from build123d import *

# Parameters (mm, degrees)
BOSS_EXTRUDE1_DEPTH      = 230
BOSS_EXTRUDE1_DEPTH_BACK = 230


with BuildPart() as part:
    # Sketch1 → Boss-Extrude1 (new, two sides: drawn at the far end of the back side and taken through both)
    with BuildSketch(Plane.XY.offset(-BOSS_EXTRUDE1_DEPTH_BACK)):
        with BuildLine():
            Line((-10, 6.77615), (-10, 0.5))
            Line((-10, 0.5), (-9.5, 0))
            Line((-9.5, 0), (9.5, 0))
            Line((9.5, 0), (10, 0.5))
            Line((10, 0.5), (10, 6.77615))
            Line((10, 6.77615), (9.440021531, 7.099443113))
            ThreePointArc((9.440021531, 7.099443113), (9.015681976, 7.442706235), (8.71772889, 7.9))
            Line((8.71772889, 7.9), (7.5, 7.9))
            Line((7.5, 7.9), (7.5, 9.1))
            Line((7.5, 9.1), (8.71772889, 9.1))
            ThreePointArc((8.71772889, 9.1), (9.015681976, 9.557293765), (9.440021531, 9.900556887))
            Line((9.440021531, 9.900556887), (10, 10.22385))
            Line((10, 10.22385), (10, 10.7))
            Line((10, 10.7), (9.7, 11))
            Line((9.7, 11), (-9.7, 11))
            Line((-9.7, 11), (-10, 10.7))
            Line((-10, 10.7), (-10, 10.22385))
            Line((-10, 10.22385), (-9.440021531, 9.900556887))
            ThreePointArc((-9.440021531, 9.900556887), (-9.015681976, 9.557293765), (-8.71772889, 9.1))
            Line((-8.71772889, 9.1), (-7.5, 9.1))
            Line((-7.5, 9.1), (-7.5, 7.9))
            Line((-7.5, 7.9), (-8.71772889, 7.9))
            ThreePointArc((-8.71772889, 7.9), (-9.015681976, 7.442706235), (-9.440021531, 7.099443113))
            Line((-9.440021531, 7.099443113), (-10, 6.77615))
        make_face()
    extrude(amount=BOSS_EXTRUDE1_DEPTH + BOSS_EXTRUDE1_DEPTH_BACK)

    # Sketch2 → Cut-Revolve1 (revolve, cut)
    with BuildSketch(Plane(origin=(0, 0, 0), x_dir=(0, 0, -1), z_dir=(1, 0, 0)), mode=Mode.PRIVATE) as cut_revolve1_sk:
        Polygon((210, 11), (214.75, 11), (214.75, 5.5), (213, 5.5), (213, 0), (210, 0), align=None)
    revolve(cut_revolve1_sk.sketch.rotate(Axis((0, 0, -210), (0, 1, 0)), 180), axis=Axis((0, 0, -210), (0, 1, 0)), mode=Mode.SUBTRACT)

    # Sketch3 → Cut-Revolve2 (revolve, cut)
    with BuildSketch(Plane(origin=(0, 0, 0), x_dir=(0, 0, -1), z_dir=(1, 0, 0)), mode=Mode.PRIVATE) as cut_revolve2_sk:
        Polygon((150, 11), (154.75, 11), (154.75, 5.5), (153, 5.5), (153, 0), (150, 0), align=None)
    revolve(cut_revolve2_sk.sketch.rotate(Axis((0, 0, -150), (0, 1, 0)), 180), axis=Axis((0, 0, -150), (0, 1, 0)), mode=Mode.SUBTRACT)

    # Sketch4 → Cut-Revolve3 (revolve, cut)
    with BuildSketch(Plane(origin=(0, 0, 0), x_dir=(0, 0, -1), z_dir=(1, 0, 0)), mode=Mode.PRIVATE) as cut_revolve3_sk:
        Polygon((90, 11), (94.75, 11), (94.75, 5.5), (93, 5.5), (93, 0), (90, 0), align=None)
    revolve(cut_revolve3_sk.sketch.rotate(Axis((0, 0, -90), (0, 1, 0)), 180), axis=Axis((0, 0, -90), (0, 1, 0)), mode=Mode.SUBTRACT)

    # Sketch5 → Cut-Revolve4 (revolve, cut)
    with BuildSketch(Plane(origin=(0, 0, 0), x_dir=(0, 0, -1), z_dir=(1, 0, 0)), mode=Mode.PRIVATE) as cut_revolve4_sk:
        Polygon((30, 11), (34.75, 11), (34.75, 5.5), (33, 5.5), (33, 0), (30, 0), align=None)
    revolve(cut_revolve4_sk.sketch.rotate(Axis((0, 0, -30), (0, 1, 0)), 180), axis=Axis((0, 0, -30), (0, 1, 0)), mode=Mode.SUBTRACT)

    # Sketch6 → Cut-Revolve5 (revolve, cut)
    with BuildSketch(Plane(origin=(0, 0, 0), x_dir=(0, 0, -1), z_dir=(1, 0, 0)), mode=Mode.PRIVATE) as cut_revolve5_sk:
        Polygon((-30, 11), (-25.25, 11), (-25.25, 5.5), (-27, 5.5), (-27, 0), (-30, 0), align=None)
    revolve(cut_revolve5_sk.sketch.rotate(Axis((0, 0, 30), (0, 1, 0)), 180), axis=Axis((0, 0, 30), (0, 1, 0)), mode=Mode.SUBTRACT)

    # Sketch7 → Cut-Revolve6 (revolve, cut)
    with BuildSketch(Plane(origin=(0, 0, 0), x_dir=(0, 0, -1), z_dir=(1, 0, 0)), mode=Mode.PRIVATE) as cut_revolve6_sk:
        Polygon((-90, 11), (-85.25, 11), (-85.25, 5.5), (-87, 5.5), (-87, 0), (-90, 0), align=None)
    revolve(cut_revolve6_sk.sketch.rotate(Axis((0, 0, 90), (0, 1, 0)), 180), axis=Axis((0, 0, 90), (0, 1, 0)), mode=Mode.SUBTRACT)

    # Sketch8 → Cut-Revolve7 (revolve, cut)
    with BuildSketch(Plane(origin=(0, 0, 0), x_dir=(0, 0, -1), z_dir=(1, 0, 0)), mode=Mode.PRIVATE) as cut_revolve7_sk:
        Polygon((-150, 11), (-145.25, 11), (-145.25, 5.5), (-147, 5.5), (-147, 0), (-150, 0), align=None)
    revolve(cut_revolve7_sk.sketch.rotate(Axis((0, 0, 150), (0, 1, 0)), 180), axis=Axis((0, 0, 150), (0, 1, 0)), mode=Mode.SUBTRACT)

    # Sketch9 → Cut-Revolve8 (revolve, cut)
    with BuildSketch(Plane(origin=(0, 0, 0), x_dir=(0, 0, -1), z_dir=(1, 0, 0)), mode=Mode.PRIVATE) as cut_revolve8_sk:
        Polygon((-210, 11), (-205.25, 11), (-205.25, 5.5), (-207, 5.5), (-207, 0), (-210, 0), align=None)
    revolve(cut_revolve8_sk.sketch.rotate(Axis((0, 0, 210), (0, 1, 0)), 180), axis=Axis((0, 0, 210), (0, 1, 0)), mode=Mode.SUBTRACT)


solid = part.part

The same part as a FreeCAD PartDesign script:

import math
import FreeCAD as App
import Part
import Sketcher
from FreeCAD import Vector
Q = App.Units.Quantity


def add_polygon(sketch, points):
    """Adds a closed chain of lines whose ends are joined by coincident constraints."""
    first, n = sketch.GeometryCount, len(points)
    for a, b in zip(points, points[1:] + points[:1]):
        sketch.addGeometry(Part.LineSegment(App.Vector(*a, 0), App.Vector(*b, 0)), False)
    for i in range(n):
        sketch.addConstraint(Sketcher.Constraint("Coincident", first + i, 2, first + (i + 1) % n, 1))

doc = App.newDocument("Part")
body = doc.addObject("PartDesign::Body", "Body")

# Sketch on XY plane
sketch1 = doc.addObject("Sketcher::SketchObject", "Sketch")
body.addObject(sketch1)
sketch1.AttachmentSupport = (doc.XY_Plane, [""])
sketch1.MapMode = "FlatFace"
sketch1.addGeometry([
    Part.LineSegment(Vector(-10, 6.77615, 0), Vector(-10, 0.5, 0)),  # 0
    Part.LineSegment(Vector(-10, 0.5, 0), Vector(-9.5, 0, 0)),  # 1
    Part.LineSegment(Vector(-9.5, 0, 0), Vector(9.5, 0, 0)),  # 2
    Part.LineSegment(Vector(9.5, 0, 0), Vector(10, 0.5, 0)),  # 3
    Part.LineSegment(Vector(10, 0.5, 0), Vector(10, 6.77615, 0)),  # 4
    Part.LineSegment(Vector(10, 6.77615, 0), Vector(9.440022, 7.099443, 0)),  # 5
    Part.ArcOfCircle(Part.Circle(Vector(10.315, 8.615, 0), Vector(0, 0, 1), 1.75), math.radians(-155.884874), math.radians(-119.999186)),  # 6
    Part.LineSegment(Vector(8.717729, 7.9, 0), Vector(7.5, 7.9, 0)),  # 7
    Part.LineSegment(Vector(7.5, 7.9, 0), Vector(7.5, 9.1, 0)),  # 8
    Part.LineSegment(Vector(7.5, 9.1, 0), Vector(8.717729, 9.1, 0)),  # 9
    Part.ArcOfCircle(Part.Circle(Vector(10.315, 8.385, 0), Vector(0, 0, 1), 1.75), math.radians(119.999186), math.radians(155.884874)),  # 10
    Part.LineSegment(Vector(9.440022, 9.900557, 0), Vector(10, 10.22385, 0)),  # 11
    Part.LineSegment(Vector(10, 10.22385, 0), Vector(10, 10.7, 0)),  # 12
    Part.LineSegment(Vector(10, 10.7, 0), Vector(9.7, 11, 0)),  # 13
    Part.LineSegment(Vector(9.7, 11, 0), Vector(-9.7, 11, 0)),  # 14
    Part.LineSegment(Vector(-9.7, 11, 0), Vector(-10, 10.7, 0)),  # 15
    Part.LineSegment(Vector(-10, 10.7, 0), Vector(-10, 10.22385, 0)),  # 16
    Part.LineSegment(Vector(-10, 10.22385, 0), Vector(-9.440022, 9.900557, 0)),  # 17
    Part.ArcOfCircle(Part.Circle(Vector(-10.315, 8.385, 0), Vector(0, 0, 1), 1.75), math.radians(24.115126), math.radians(60.000814)),  # 18
    Part.LineSegment(Vector(-8.717729, 9.1, 0), Vector(-7.5, 9.1, 0)),  # 19
    Part.LineSegment(Vector(-7.5, 9.1, 0), Vector(-7.5, 7.9, 0)),  # 20
    Part.LineSegment(Vector(-7.5, 7.9, 0), Vector(-8.717729, 7.9, 0)),  # 21
    Part.ArcOfCircle(Part.Circle(Vector(-10.315, 8.615, 0), Vector(0, 0, 1), 1.75), math.radians(-60.000814), math.radians(-24.115126)),  # 22
    Part.LineSegment(Vector(-9.440022, 7.099443, 0), Vector(-10, 6.77615, 0)),  # 23
], False)
sketch1.addConstraint([
    Sketcher.Constraint("Coincident", 0, 2, 1, 1),
    Sketcher.Constraint("Coincident", 1, 2, 2, 1),
    Sketcher.Constraint("Coincident", 2, 2, 3, 1),
    Sketcher.Constraint("Coincident", 3, 2, 4, 1),
    Sketcher.Constraint("Coincident", 4, 2, 5, 1),
    Sketcher.Constraint("Tangent", 5, 2, 6, 2),
    Sketcher.Constraint("Coincident", 6, 1, 7, 1),
    Sketcher.Constraint("Coincident", 7, 2, 8, 1),
    Sketcher.Constraint("Coincident", 8, 2, 9, 1),
    Sketcher.Constraint("Coincident", 9, 2, 10, 2),
    Sketcher.Constraint("Tangent", 10, 1, 11, 1),
    Sketcher.Constraint("Coincident", 11, 2, 12, 1),
    Sketcher.Constraint("Coincident", 12, 2, 13, 1),
    Sketcher.Constraint("Coincident", 13, 2, 14, 1),
    Sketcher.Constraint("Coincident", 14, 2, 15, 1),
    Sketcher.Constraint("Coincident", 15, 2, 16, 1),
    Sketcher.Constraint("Coincident", 16, 2, 17, 1),
    Sketcher.Constraint("Tangent", 17, 2, 18, 2),
    Sketcher.Constraint("Coincident", 18, 1, 19, 1),
    Sketcher.Constraint("Coincident", 19, 2, 20, 1),
    Sketcher.Constraint("Coincident", 20, 2, 21, 1),
    Sketcher.Constraint("Coincident", 21, 2, 22, 2),
    Sketcher.Constraint("Tangent", 22, 1, 23, 1),
    Sketcher.Constraint("Coincident", 23, 2, 0, 1),
    Sketcher.Constraint("Vertical", 0),
    Sketcher.Constraint("Horizontal", 2),
    Sketcher.Constraint("Vertical", 4),
    Sketcher.Constraint("Horizontal", 7),
    Sketcher.Constraint("Vertical", 8),
    Sketcher.Constraint("Horizontal", 9),
    Sketcher.Constraint("Vertical", 12),
    Sketcher.Constraint("Horizontal", 14),
    Sketcher.Constraint("Vertical", 16),
    Sketcher.Constraint("Horizontal", 19),
    Sketcher.Constraint("Vertical", 20),
    Sketcher.Constraint("Horizontal", 21),
    Sketcher.Constraint("Equal", 6, 10),
    Sketcher.Constraint("Equal", 10, 18),
    Sketcher.Constraint("Equal", 18, 22),
    Sketcher.Constraint("Symmetric", 1, 2, 2, 2, -1, 1),
    Sketcher.Constraint("Symmetric", 10, 3, 18, 3, -2),
    Sketcher.Constraint("Symmetric", 6, 3, 22, 3, -2),
    Sketcher.Constraint("Symmetric", 0, 2, 3, 2, -2),
    Sketcher.Constraint("Symmetric", 12, 2, 15, 2, -2),
    Sketcher.Constraint("Symmetric", 8, 2, 19, 2, -2),
    Sketcher.Constraint("Perpendicular", 1, 3),
    Sketcher.Constraint("Perpendicular", 3, 13),
    Sketcher.Constraint("Perpendicular", 13, 15),
    Sketcher.Constraint("Parallel", 5, 17),
    Sketcher.Constraint("Parallel", 11, 23),
    Sketcher.Constraint("Horizontal", 11, 2, 16, 2),
    Sketcher.Constraint("Horizontal", 7, 2, 20, 2),
    Sketcher.Constraint("Vertical", 6, 3, 10, 3),
    Sketcher.Constraint("Vertical", 6, 1, 9, 2),
    Sketcher.Constraint("Vertical", 4, 2, 11, 2),
    Sketcher.Constraint("DistanceX", 2, 1, 2, 2, Q("19 mm")),
    Sketcher.Constraint("Radius", 6, Q("1.75 mm")),
    Sketcher.Constraint("DistanceX", 14, 2, 14, 1, Q("19.4 mm")),
    Sketcher.Constraint("DistanceY", 8, 1, 8, 2, Q("1.2 mm")),
    Sketcher.Constraint("DistanceX", 0, 2, -1, 1, Q("10 mm")),
    Sketcher.Constraint("DistanceY", -1, 1, 13, 2, Q("11 mm")),
    Sketcher.Constraint("DistanceY", -1, 1, 6, 1, Q("7.9 mm")),
    Sketcher.Constraint("DistanceX", -1, 1, 7, 2, Q("7.5 mm")),
    Sketcher.Constraint("DistanceY", 10, 3, 6, 3, Q("0.23 mm")),
    Sketcher.Constraint("DistanceX", 18, 3, 10, 3, Q("20.63 mm")),
    Sketcher.Constraint("DistanceY", 0, 2, 0, 1, Q("6.27615 mm")),
])
pad1 = doc.addObject("PartDesign::Pad", "Pad")
body.addObject(pad1)
pad1.Profile = sketch1
pad1.Type = "TwoLengths"
pad1.Length = 230
pad1.Length2 = 230

# Sketch on YZ plane
sketch2 = doc.addObject("Sketcher::SketchObject", "Sketch001")
body.addObject(sketch2)
sketch2.AttachmentSupport = (doc.YZ_Plane, [""])
sketch2.MapMode = "FlatFace"
add_polygon(sketch2, [(11, -214.75), (11, -210), (0, -210), (0, -213), (5.5, -213), (5.5, -214.75)])  # lines 0-5
sketch2.addGeometry(Part.LineSegment(Vector(0, -210, 0), Vector(11, -210, 0)), True)  # axis
sketch2.addConstraint([
    Sketcher.Constraint("Vertical", 0),
    Sketcher.Constraint("Horizontal", 1),
    Sketcher.Constraint("Vertical", 2),
    Sketcher.Constraint("Horizontal", 3),
    Sketcher.Constraint("Vertical", 4),
    Sketcher.Constraint("Horizontal", 5),
    Sketcher.Constraint("Horizontal", 6),
    Sketcher.Constraint("Coincident", 6, 1, 1, 2),
    Sketcher.Constraint("PointOnObject", 1, 2, -2),
    Sketcher.Constraint("Vertical", 5, 2, 6, 2),
    Sketcher.Constraint("Equal", 3, 5),
    Sketcher.Constraint("DistanceX", 1, 2, 1, 1, Q("11 mm")),
    Sketcher.Constraint("DistanceY", 2, 2, 2, 1, Q("3 mm")),
    Sketcher.Constraint("DistanceY", 0, 2, -1, 1, Q("210 mm")),
    Sketcher.Constraint("DistanceY", 0, 1, 0, 2, Q("4.75 mm")),
])
groove = doc.addObject("PartDesign::Groove", "Groove")
body.addObject(groove)
groove.Profile = sketch2
groove.ReferenceAxis = (sketch2, ["Axis0"])
groove.Angle = 360

# Sketch on YZ plane
sketch3 = doc.addObject("Sketcher::SketchObject", "Sketch002")
body.addObject(sketch3)
sketch3.AttachmentSupport = (doc.YZ_Plane, [""])
sketch3.MapMode = "FlatFace"
add_polygon(sketch3, [(11, -154.75), (11, -150), (0, -150), (0, -153), (5.5, -153), (5.5, -154.75)])  # lines 0-5
sketch3.addGeometry(Part.LineSegment(Vector(0, -150, 0), Vector(11, -150, 0)), True)  # axis
sketch3.addConstraint([
    Sketcher.Constraint("Vertical", 0),
    Sketcher.Constraint("Horizontal", 1),
    Sketcher.Constraint("Vertical", 2),
    Sketcher.Constraint("Horizontal", 3),
    Sketcher.Constraint("Vertical", 4),
    Sketcher.Constraint("Horizontal", 5),
    Sketcher.Constraint("Horizontal", 6),
    Sketcher.Constraint("Coincident", 6, 1, 1, 2),
    Sketcher.Constraint("PointOnObject", 1, 2, -2),
    Sketcher.Constraint("Vertical", 5, 2, 6, 2),
    Sketcher.Constraint("Equal", 3, 5),
    Sketcher.Constraint("DistanceX", 1, 2, 1, 1, Q("11 mm")),
    Sketcher.Constraint("DistanceY", 2, 2, 2, 1, Q("3 mm")),
    Sketcher.Constraint("DistanceY", 0, 2, -1, 1, Q("150 mm")),
    Sketcher.Constraint("DistanceY", 0, 1, 0, 2, Q("4.75 mm")),
])
groove2 = doc.addObject("PartDesign::Groove", "Groove001")
body.addObject(groove2)
groove2.Profile = sketch3
groove2.ReferenceAxis = (sketch3, ["Axis0"])
groove2.Angle = 360

# Sketch on YZ plane
sketch4 = doc.addObject("Sketcher::SketchObject", "Sketch003")
body.addObject(sketch4)
sketch4.AttachmentSupport = (doc.YZ_Plane, [""])
sketch4.MapMode = "FlatFace"
add_polygon(sketch4, [(11, -94.75), (11, -90), (0, -90), (0, -93), (5.5, -93), (5.5, -94.75)])  # lines 0-5
sketch4.addGeometry(Part.LineSegment(Vector(0, -90, 0), Vector(11, -90, 0)), True)  # axis
sketch4.addConstraint([
    Sketcher.Constraint("Vertical", 0),
    Sketcher.Constraint("Horizontal", 1),
    Sketcher.Constraint("Vertical", 2),
    Sketcher.Constraint("Horizontal", 3),
    Sketcher.Constraint("Vertical", 4),
    Sketcher.Constraint("Horizontal", 5),
    Sketcher.Constraint("Horizontal", 6),
    Sketcher.Constraint("Coincident", 6, 1, 1, 2),
    Sketcher.Constraint("PointOnObject", 1, 2, -2),
    Sketcher.Constraint("Vertical", 5, 2, 6, 2),
    Sketcher.Constraint("Equal", 3, 5),
    Sketcher.Constraint("DistanceX", 1, 2, 1, 1, Q("11 mm")),
    Sketcher.Constraint("DistanceY", 2, 2, 2, 1, Q("3 mm")),
    Sketcher.Constraint("DistanceY", 0, 2, -1, 1, Q("90 mm")),
    Sketcher.Constraint("DistanceY", 0, 1, 0, 2, Q("4.75 mm")),
])
groove3 = doc.addObject("PartDesign::Groove", "Groove002")
body.addObject(groove3)
groove3.Profile = sketch4
groove3.ReferenceAxis = (sketch4, ["Axis0"])
groove3.Angle = 360

# Sketch on YZ plane
sketch5 = doc.addObject("Sketcher::SketchObject", "Sketch004")
body.addObject(sketch5)
sketch5.AttachmentSupport = (doc.YZ_Plane, [""])
sketch5.MapMode = "FlatFace"
add_polygon(sketch5, [(11, -34.75), (11, -30), (0, -30), (0, -33), (5.5, -33), (5.5, -34.75)])  # lines 0-5
sketch5.addGeometry(Part.LineSegment(Vector(0, -30, 0), Vector(11, -30, 0)), True)  # axis
sketch5.addConstraint([
    Sketcher.Constraint("Vertical", 0),
    Sketcher.Constraint("Horizontal", 1),
    Sketcher.Constraint("Vertical", 2),
    Sketcher.Constraint("Horizontal", 3),
    Sketcher.Constraint("Vertical", 4),
    Sketcher.Constraint("Horizontal", 5),
    Sketcher.Constraint("Horizontal", 6),
    Sketcher.Constraint("Coincident", 6, 1, 1, 2),
    Sketcher.Constraint("PointOnObject", 1, 2, -2),
    Sketcher.Constraint("Vertical", 5, 2, 6, 2),
    Sketcher.Constraint("Equal", 3, 5),
    Sketcher.Constraint("DistanceX", 1, 2, 1, 1, Q("11 mm")),
    Sketcher.Constraint("DistanceY", 2, 2, 2, 1, Q("3 mm")),
    Sketcher.Constraint("DistanceY", 0, 2, -1, 1, Q("30 mm")),
    Sketcher.Constraint("DistanceY", 0, 1, 0, 2, Q("4.75 mm")),
])
groove4 = doc.addObject("PartDesign::Groove", "Groove003")
body.addObject(groove4)
groove4.Profile = sketch5
groove4.ReferenceAxis = (sketch5, ["Axis0"])
groove4.Angle = 360

# Sketch on YZ plane
sketch6 = doc.addObject("Sketcher::SketchObject", "Sketch005")
body.addObject(sketch6)
sketch6.AttachmentSupport = (doc.YZ_Plane, [""])
sketch6.MapMode = "FlatFace"
add_polygon(sketch6, [(11, 25.25), (11, 30), (0, 30), (0, 27), (5.5, 27), (5.5, 25.25)])  # lines 0-5
sketch6.addGeometry(Part.LineSegment(Vector(0, 30, 0), Vector(11, 30, 0)), True)  # axis
sketch6.addConstraint([
    Sketcher.Constraint("Vertical", 0),
    Sketcher.Constraint("Horizontal", 1),
    Sketcher.Constraint("Vertical", 2),
    Sketcher.Constraint("Horizontal", 3),
    Sketcher.Constraint("Vertical", 4),
    Sketcher.Constraint("Horizontal", 5),
    Sketcher.Constraint("Horizontal", 6),
    Sketcher.Constraint("Coincident", 6, 1, 1, 2),
    Sketcher.Constraint("PointOnObject", 1, 2, -2),
    Sketcher.Constraint("Vertical", 5, 2, 6, 2),
    Sketcher.Constraint("Equal", 3, 5),
    Sketcher.Constraint("DistanceX", 1, 2, 1, 1, Q("11 mm")),
    Sketcher.Constraint("DistanceY", 2, 2, 2, 1, Q("3 mm")),
    Sketcher.Constraint("DistanceY", -1, 1, 0, 2, Q("30 mm")),
    Sketcher.Constraint("DistanceY", 0, 1, 0, 2, Q("4.75 mm")),
])
groove5 = doc.addObject("PartDesign::Groove", "Groove004")
body.addObject(groove5)
groove5.Profile = sketch6
groove5.ReferenceAxis = (sketch6, ["Axis0"])
groove5.Angle = 360

# Sketch on YZ plane
sketch7 = doc.addObject("Sketcher::SketchObject", "Sketch006")
body.addObject(sketch7)
sketch7.AttachmentSupport = (doc.YZ_Plane, [""])
sketch7.MapMode = "FlatFace"
add_polygon(sketch7, [(11, 85.25), (11, 90), (0, 90), (0, 87), (5.5, 87), (5.5, 85.25)])  # lines 0-5
sketch7.addGeometry(Part.LineSegment(Vector(0, 90, 0), Vector(11, 90, 0)), True)  # axis
sketch7.addConstraint([
    Sketcher.Constraint("Vertical", 0),
    Sketcher.Constraint("Horizontal", 1),
    Sketcher.Constraint("Vertical", 2),
    Sketcher.Constraint("Horizontal", 3),
    Sketcher.Constraint("Vertical", 4),
    Sketcher.Constraint("Horizontal", 5),
    Sketcher.Constraint("Horizontal", 6),
    Sketcher.Constraint("Coincident", 6, 1, 1, 2),
    Sketcher.Constraint("PointOnObject", 1, 2, -2),
    Sketcher.Constraint("Vertical", 5, 2, 6, 2),
    Sketcher.Constraint("Equal", 3, 5),
    Sketcher.Constraint("DistanceX", 1, 2, 1, 1, Q("11 mm")),
    Sketcher.Constraint("DistanceY", 2, 2, 2, 1, Q("3 mm")),
    Sketcher.Constraint("DistanceY", -1, 1, 0, 2, Q("90 mm")),
    Sketcher.Constraint("DistanceY", 0, 1, 0, 2, Q("4.75 mm")),
])
groove6 = doc.addObject("PartDesign::Groove", "Groove005")
body.addObject(groove6)
groove6.Profile = sketch7
groove6.ReferenceAxis = (sketch7, ["Axis0"])
groove6.Angle = 360

# Sketch on YZ plane
sketch8 = doc.addObject("Sketcher::SketchObject", "Sketch007")
body.addObject(sketch8)
sketch8.AttachmentSupport = (doc.YZ_Plane, [""])
sketch8.MapMode = "FlatFace"
add_polygon(sketch8, [(11, 145.25), (11, 150), (0, 150), (0, 147), (5.5, 147), (5.5, 145.25)])  # lines 0-5
sketch8.addGeometry(Part.LineSegment(Vector(0, 150, 0), Vector(11, 150, 0)), True)  # axis
sketch8.addConstraint([
    Sketcher.Constraint("Vertical", 0),
    Sketcher.Constraint("Horizontal", 1),
    Sketcher.Constraint("Vertical", 2),
    Sketcher.Constraint("Horizontal", 3),
    Sketcher.Constraint("Vertical", 4),
    Sketcher.Constraint("Horizontal", 5),
    Sketcher.Constraint("Horizontal", 6),
    Sketcher.Constraint("Coincident", 6, 1, 1, 2),
    Sketcher.Constraint("PointOnObject", 1, 2, -2),
    Sketcher.Constraint("Vertical", 5, 2, 6, 2),
    Sketcher.Constraint("Equal", 3, 5),
    Sketcher.Constraint("DistanceX", 1, 2, 1, 1, Q("11 mm")),
    Sketcher.Constraint("DistanceY", 2, 2, 2, 1, Q("3 mm")),
    Sketcher.Constraint("DistanceY", -1, 1, 0, 2, Q("150 mm")),
    Sketcher.Constraint("DistanceY", 0, 1, 0, 2, Q("4.75 mm")),
])
groove7 = doc.addObject("PartDesign::Groove", "Groove006")
body.addObject(groove7)
groove7.Profile = sketch8
groove7.ReferenceAxis = (sketch8, ["Axis0"])
groove7.Angle = 360

# Sketch on YZ plane
sketch9 = doc.addObject("Sketcher::SketchObject", "Sketch008")
body.addObject(sketch9)
sketch9.AttachmentSupport = (doc.YZ_Plane, [""])
sketch9.MapMode = "FlatFace"
add_polygon(sketch9, [(11, 205.25), (11, 210), (0, 210), (0, 207), (5.5, 207), (5.5, 205.25)])  # lines 0-5
sketch9.addGeometry(Part.LineSegment(Vector(0, 210, 0), Vector(11, 210, 0)), True)  # axis
sketch9.addConstraint([
    Sketcher.Constraint("Vertical", 0),
    Sketcher.Constraint("Horizontal", 1),
    Sketcher.Constraint("Vertical", 2),
    Sketcher.Constraint("Horizontal", 3),
    Sketcher.Constraint("Vertical", 4),
    Sketcher.Constraint("Horizontal", 5),
    Sketcher.Constraint("Horizontal", 6),
    Sketcher.Constraint("Coincident", 6, 1, 1, 2),
    Sketcher.Constraint("PointOnObject", 1, 2, -2),
    Sketcher.Constraint("Vertical", 5, 2, 6, 2),
    Sketcher.Constraint("Equal", 3, 5),
    Sketcher.Constraint("DistanceX", 1, 2, 1, 1, Q("11 mm")),
    Sketcher.Constraint("DistanceY", 2, 2, 2, 1, Q("3 mm")),
    Sketcher.Constraint("DistanceY", -1, 1, 0, 2, Q("210 mm")),
    Sketcher.Constraint("DistanceY", 0, 1, 0, 2, Q("4.75 mm")),
])
groove8 = doc.addObject("PartDesign::Groove", "Groove007")
body.addObject(groove8)
groove8.Profile = sketch9
groove8.ReferenceAxis = (sketch9, ["Axis0"])
groove8.Angle = 360

doc.recompute()
